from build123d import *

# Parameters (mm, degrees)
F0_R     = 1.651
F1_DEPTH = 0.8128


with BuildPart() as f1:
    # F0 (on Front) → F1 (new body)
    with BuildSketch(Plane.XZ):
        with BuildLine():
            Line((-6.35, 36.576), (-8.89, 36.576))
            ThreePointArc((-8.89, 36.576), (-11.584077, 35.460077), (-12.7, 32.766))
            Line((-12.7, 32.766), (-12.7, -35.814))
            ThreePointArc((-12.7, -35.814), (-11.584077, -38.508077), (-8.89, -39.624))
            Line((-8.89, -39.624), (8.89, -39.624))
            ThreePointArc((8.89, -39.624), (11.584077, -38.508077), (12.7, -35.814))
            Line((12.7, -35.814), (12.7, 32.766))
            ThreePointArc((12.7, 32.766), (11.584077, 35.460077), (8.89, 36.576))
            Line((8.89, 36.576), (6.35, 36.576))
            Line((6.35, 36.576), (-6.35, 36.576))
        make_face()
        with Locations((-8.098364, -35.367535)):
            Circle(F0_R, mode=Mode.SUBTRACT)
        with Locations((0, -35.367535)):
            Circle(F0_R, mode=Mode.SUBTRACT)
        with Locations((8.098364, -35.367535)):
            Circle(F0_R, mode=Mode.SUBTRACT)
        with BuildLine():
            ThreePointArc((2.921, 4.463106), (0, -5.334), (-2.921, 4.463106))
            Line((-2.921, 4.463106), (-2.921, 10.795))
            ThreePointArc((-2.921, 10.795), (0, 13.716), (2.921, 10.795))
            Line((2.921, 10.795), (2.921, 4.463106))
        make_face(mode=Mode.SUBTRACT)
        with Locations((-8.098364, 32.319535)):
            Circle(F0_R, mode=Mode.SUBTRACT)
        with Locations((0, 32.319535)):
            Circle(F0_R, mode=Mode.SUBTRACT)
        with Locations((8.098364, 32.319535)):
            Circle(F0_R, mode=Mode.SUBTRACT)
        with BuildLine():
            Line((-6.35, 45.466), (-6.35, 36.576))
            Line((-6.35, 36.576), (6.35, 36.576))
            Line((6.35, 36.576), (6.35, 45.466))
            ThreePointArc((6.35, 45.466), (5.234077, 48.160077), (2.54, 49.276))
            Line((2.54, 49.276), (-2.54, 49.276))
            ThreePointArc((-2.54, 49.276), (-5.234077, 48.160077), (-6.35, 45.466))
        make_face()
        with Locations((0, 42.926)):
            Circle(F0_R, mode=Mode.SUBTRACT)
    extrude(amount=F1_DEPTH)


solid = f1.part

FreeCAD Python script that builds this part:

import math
import FreeCAD as App
import Part
import Sketcher
Q = App.Units.Quantity

doc = App.newDocument("Part")
params = doc.addObject("Spreadsheet::Sheet", "Params")
for row, (alias, value) in enumerate([
    ("sketch1_diameter", "0.13 in"),
    ("sketch1_radius", "0.15 in"),
    ("sketch1_radius2", "0.21 in"),
    ("sketch1_width", "0.7 in"),
    ("sketch1_width2", "0.1 in"),
    ("pad1_length", "0.032 in"),
], start=1):
    params.set(f"A{row}", alias)
    params.set(f"B{row}", "=" + value)
    params.setAlias(f"B{row}", alias)

body = doc.addObject("PartDesign::Body", "Body")

sketch1 = body.newObject("Sketcher::SketchObject", "Sketch")
sketch1.AttachmentSupport = (doc.getObject("XZ_Plane"), [""])
sketch1.MapMode = "FlatFace"
sketch1.addGeometry(Part.ArcOfCircle(Part.Circle(App.Vector(-8.9, 32.8, 0), App.Vector(0, 0, 1), 3.8), math.radians(90), math.radians(180)), False)
sketch1.addGeometry(Part.LineSegment(App.Vector(-12.7, 32.8, 0), App.Vector(-12.7, -35.8, 0)), False)
sketch1.addGeometry(Part.ArcOfCircle(Part.Circle(App.Vector(-8.9, -35.8, 0), App.Vector(0, 0, 1), 3.8), math.radians(180), math.radians(270)), False)
sketch1.addGeometry(Part.LineSegment(App.Vector(-8.9, -39.6, 0), App.Vector(8.9, -39.6, 0)), False)
sketch1.addGeometry(Part.ArcOfCircle(Part.Circle(App.Vector(8.9, -35.8, 0), App.Vector(0, 0, 1), 3.8), math.radians(-90), math.radians(0)), False)
sketch1.addGeometry(Part.LineSegment(App.Vector(12.7, -35.8, 0), App.Vector(12.7, 32.8, 0)), False)
sketch1.addGeometry(Part.ArcOfCircle(Part.Circle(App.Vector(8.9, 32.8, 0), App.Vector(0, 0, 1), 3.8), math.radians(0), math.radians(90)), False)
sketch1.addGeometry(Part.LineSegment(App.Vector(8.9, 36.6, 0), App.Vector(6.3, 36.6, 0)), False)
sketch1.addGeometry(Part.LineSegment(App.Vector(6.3, 36.6, 0), App.Vector(6.3, 45.5, 0)), False)
sketch1.addGeometry(Part.ArcOfCircle(Part.Circle(App.Vector(2.5, 45.5, 0), App.Vector(0, 0, 1), 3.8), math.radians(0), math.radians(90)), False)
sketch1.addGeometry(Part.LineSegment(App.Vector(2.5, 49.3, 0), App.Vector(-2.5, 49.3, 0)), False)
sketch1.addGeometry(Part.ArcOfCircle(Part.Circle(App.Vector(-2.5, 45.5, 0), App.Vector(0, 0, 1), 3.8), math.radians(90), math.radians(180)), False)
sketch1.addGeometry(Part.LineSegment(App.Vector(-6.3, 45.5, 0), App.Vector(-6.3, 36.6, 0)), False)
sketch1.addGeometry(Part.LineSegment(App.Vector(-6.3, 36.6, 0), App.Vector(-8.9, 36.6, 0)), False)
sketch1.addGeometry(Part.Circle(App.Vector(-8.1, -35.4, 0), App.Vector(0, 0, 1), 1.7), False)
sketch1.addGeometry(Part.Circle(App.Vector(0, -35.4, 0), App.Vector(0, 0, 1), 1.7), False)
sketch1.addGeometry(Part.Circle(App.Vector(8.1, -35.4, 0), App.Vector(0, 0, 1), 1.7), False)
sketch1.addGeometry(Part.Circle(App.Vector(-8.1, 32.3, 0), App.Vector(0, 0, 1), 1.7), False)
sketch1.addGeometry(Part.LineSegment(App.Vector(2.9, 10.8, 0), App.Vector(2.9, 4.5, 0)), False)
sketch1.addGeometry(Part.ArcOfCircle(Part.Circle(App.Vector(0, 0, 0), App.Vector(0, 0, 1), 5.3), math.radians(123), math.radians(417)), False)
sketch1.addGeometry(Part.LineSegment(App.Vector(-2.9, 4.5, 0), App.Vector(-2.9, 10.8, 0)), False)
sketch1.addGeometry(Part.ArcOfCircle(Part.Circle(App.Vector(0, 10.8, 0), App.Vector(0, 0, 1), 2.9), math.radians(0), math.radians(180)), False)
sketch1.addGeometry(Part.Circle(App.Vector(0, 32.3, 0), App.Vector(0, 0, 1), 1.7), False)
sketch1.addGeometry(Part.Circle(App.Vector(0, 42.9, 0), App.Vector(0, 0, 1), 1.7), False)
sketch1.addGeometry(Part.Circle(App.Vector(8.1, 32.3, 0), App.Vector(0, 0, 1), 1.7), False)
sketch1.addConstraint(Sketcher.Constraint("Tangent", 0, 2, 1, 1))
sketch1.addConstraint(Sketcher.Constraint("Tangent", 1, 2, 2, 1))
sketch1.addConstraint(Sketcher.Constraint("Tangent", 2, 2, 3, 1))
sketch1.addConstraint(Sketcher.Constraint("Tangent", 3, 2, 4, 1))
sketch1.addConstraint(Sketcher.Constraint("Tangent", 4, 2, 5, 1))
sketch1.addConstraint(Sketcher.Constraint("Tangent", 5, 2, 6, 1))
sketch1.addConstraint(Sketcher.Constraint("Tangent", 6, 2, 7, 1))
sketch1.addConstraint(Sketcher.Constraint("Coincident", 7, 2, 8, 1))
sketch1.addConstraint(Sketcher.Constraint("Tangent", 8, 2, 9, 1))
sketch1.addConstraint(Sketcher.Constraint("Tangent", 9, 2, 10, 1))
sketch1.addConstraint(Sketcher.Constraint("Tangent", 10, 2, 11, 1))
sketch1.addConstraint(Sketcher.Constraint("Tangent", 11, 2, 12, 1))
sketch1.addConstraint(Sketcher.Constraint("Coincident", 12, 2, 13, 1))
sketch1.addConstraint(Sketcher.Constraint("Tangent", 13, 2, 0, 1))
sketch1.addConstraint(Sketcher.Constraint("Coincident", 18, 2, 19, 2))
sketch1.addConstraint(Sketcher.Constraint("Coincident", 19, 1, 20, 1))
sketch1.addConstraint(Sketcher.Constraint("Tangent", 20, 2, 21, 2))
sketch1.addConstraint(Sketcher.Constraint("Tangent", 21, 1, 18, 1))
sketch1.addConstraint(Sketcher.Constraint("Vertical", 1))
sketch1.addConstraint(Sketcher.Constraint("Horizontal", 3))
sketch1.addConstraint(Sketcher.Constraint("Vertical", 5))
sketch1.addConstraint(Sketcher.Constraint("Horizontal", 7))
sketch1.addConstraint(Sketcher.Constraint("Vertical", 8))
sketch1.addConstraint(Sketcher.Constraint("Horizontal", 10))
sketch1.addConstraint(Sketcher.Constraint("Vertical", 12))
sketch1.addConstraint(Sketcher.Constraint("Horizontal", 13))
sketch1.addConstraint(Sketcher.Constraint("Vertical", 18))
sketch1.addConstraint(Sketcher.Constraint("Vertical", 20))
sketch1.addConstraint(Sketcher.Constraint("Coincident", 19, 3, -1, 1))
sketch1.addConstraint(Sketcher.Constraint("Equal", 0, 2))
sketch1.addConstraint(Sketcher.Constraint("Equal", 2, 4))
sketch1.addConstraint(Sketcher.Constraint("Equal", 4, 6))
sketch1.addConstraint(Sketcher.Constraint("Equal", 6, 9))
sketch1.addConstraint(Sketcher.Constraint("Equal", 9, 11))
sketch1.addConstraint(Sketcher.Constraint("Equal", 14, 15))
sketch1.addConstraint(Sketcher.Constraint("Equal", 15, 16))
sketch1.addConstraint(Sketcher.Constraint("Equal", 16, 17))
sketch1.addConstraint(Sketcher.Constraint("Equal", 17, 22))
sketch1.addConstraint(Sketcher.Constraint("Equal", 22, 23))
sketch1.addConstraint(Sketcher.Constraint("Equal", 23, 24))
sketch1.addConstraint(Sketcher.Constraint("Symmetric", 0, 3, 6, 3, -2))
sketch1.addConstraint(Sketcher.Constraint("Symmetric", 14, 3, 16, 3, -2))
sketch1.addConstraint(Sketcher.Constraint("Symmetric", 17, 3, 24, 3, -2))
sketch1.addConstraint(Sketcher.Constraint("PointOnObject", 15, 3, -2))
sketch1.addConstraint(Sketcher.Constraint("PointOnObject", 21, 3, -2))
sketch1.addConstraint(Sketcher.Constraint("PointOnObject", 22, 3, -2))
sketch1.addConstraint(Sketcher.Constraint("PointOnObject", 23, 3, -2))
sketch1.addConstraint(Sketcher.Constraint("Horizontal", 14, 3, 15, 3))
sketch1.addConstraint(Sketcher.Constraint("Horizontal", 17, 3, 22, 3))
sketch1.addConstraint(Sketcher.Constraint("Vertical", 14, 3, 17, 3))
sketch1.addConstraint(Sketcher.Constraint("Equal", 7, 13))
sketch1.addConstraint(Sketcher.Constraint("Diameter", 14, Q("0.13 in")))
sketch1.addConstraint(Sketcher.Constraint("Radius", 0, Q("0.15 in")))
sketch1.addConstraint(Sketcher.Constraint("Radius", 19, Q("0.21 in")))
sketch1.addConstraint(Sketcher.Constraint("DistanceX", 3, 1, 3, 2, Q("0.7 in")))
sketch1.addConstraint(Sketcher.Constraint("DistanceX", 7, 2, 7, 1, Q("0.1 in")))
sketch1.addConstraint(Sketcher.Constraint("DistanceY", 1, 2, 1, 1, Q("2.7 in")))
sketch1.addConstraint(Sketcher.Constraint("Radius", 21, Q("0.115 in")))
sketch1.addConstraint(Sketcher.Constraint("DistanceY", 8, 1, 8, 2, Q("0.35 in")))
sketch1.addConstraint(Sketcher.Constraint("DistanceY", 23, 3, 9, 3, Q("0.1 in")))
sketch1.addConstraint(Sketcher.Constraint("DistanceY", -1, 1, 0, 3, Q("1.29 in")))
sketch1.addConstraint(Sketcher.Constraint("DistanceY", -1, 1, 21, 3, Q("0.425 in")))
sketch1.addConstraint(Sketcher.Constraint("DistanceX", 14, 3, 16, 3, Q("16.196728 mm")))
sketch1.addConstraint(Sketcher.Constraint("DistanceY", 14, 3, 17, 3, Q("67.68707 mm")))
sketch1.addConstraint(Sketcher.Constraint("DistanceY", 18, 2, 22, 3, Q("27.856429 mm")))
sketch1.setExpression("Constraints[51]", "Params.sketch1_diameter")
sketch1.setExpression("Constraints[52]", "Params.sketch1_radius")
sketch1.setExpression("Constraints[53]", "Params.sketch1_radius2")
sketch1.setExpression("Constraints[54]", "Params.sketch1_width")
sketch1.setExpression("Constraints[55]", "Params.sketch1_width2")
pad1 = body.newObject("PartDesign::Pad", "Pad")
pad1.Profile = sketch1
pad1.setExpression("Length", "Params.pad1_length")

doc.recompute()
